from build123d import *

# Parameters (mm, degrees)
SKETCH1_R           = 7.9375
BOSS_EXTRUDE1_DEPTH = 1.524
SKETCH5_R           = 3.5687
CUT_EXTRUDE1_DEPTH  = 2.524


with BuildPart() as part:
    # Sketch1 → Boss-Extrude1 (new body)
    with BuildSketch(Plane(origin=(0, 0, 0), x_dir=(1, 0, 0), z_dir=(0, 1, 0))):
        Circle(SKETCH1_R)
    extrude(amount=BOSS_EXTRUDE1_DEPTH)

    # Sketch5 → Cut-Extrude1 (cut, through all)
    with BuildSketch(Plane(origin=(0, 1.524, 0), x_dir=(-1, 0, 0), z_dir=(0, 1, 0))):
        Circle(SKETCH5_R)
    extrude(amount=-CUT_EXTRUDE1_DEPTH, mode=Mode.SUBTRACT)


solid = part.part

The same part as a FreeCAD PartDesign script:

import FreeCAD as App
import Part
import Sketcher
Q = App.Units.Quantity

doc = App.newDocument("Part")
body = doc.addObject("PartDesign::Body", "Body")

sketch1 = body.newObject("Sketcher::SketchObject", "Sketch")
sketch1.AttachmentSupport = (doc.getObject("XZ_Plane"), [""])
sketch1.MapMode = "FlatFace"
sketch1.addGeometry(Part.Circle(App.Vector(0, 0, 0), App.Vector(0, 0, 1), 8), False)
sketch1.addConstraint([
    Sketcher.Constraint("Coincident", 0, 3, -1, 1),
    Sketcher.Constraint("Diameter", 0, Q("0.625 in")),
])
pad1 = body.newObject("PartDesign::Pad", "Pad")
pad1.Profile = sketch1
pad1.Length = Q("0.06 in")
pad1.Reversed = True

sketch2 = body.newObject("Sketcher::SketchObject", "Sketch001")
sketch2.AttachmentSupport = (doc.getObject("XZ_Plane"), [""])
sketch2.MapMode = "FlatFace"
sketch2.AttachmentOffset = App.Placement(App.Vector(0, 0, -0.06 * 25.4), App.Rotation())
sketch2.addGeometry(Part.Circle(App.Vector(0, 0, 0), App.Vector(0, 0, 1), 3.6), False)
sketch2.addConstraint([
    Sketcher.Constraint("Coincident", 0, 3, -1, 1),
    Sketcher.Constraint("Diameter", 0, Q("0.281 in")),
])
pocket1 = body.newObject("PartDesign::Pocket", "Pocket")
pocket1.Profile = sketch2
pocket1.Type = "ThroughAll"
pocket1.Reversed = True

doc.recompute()
